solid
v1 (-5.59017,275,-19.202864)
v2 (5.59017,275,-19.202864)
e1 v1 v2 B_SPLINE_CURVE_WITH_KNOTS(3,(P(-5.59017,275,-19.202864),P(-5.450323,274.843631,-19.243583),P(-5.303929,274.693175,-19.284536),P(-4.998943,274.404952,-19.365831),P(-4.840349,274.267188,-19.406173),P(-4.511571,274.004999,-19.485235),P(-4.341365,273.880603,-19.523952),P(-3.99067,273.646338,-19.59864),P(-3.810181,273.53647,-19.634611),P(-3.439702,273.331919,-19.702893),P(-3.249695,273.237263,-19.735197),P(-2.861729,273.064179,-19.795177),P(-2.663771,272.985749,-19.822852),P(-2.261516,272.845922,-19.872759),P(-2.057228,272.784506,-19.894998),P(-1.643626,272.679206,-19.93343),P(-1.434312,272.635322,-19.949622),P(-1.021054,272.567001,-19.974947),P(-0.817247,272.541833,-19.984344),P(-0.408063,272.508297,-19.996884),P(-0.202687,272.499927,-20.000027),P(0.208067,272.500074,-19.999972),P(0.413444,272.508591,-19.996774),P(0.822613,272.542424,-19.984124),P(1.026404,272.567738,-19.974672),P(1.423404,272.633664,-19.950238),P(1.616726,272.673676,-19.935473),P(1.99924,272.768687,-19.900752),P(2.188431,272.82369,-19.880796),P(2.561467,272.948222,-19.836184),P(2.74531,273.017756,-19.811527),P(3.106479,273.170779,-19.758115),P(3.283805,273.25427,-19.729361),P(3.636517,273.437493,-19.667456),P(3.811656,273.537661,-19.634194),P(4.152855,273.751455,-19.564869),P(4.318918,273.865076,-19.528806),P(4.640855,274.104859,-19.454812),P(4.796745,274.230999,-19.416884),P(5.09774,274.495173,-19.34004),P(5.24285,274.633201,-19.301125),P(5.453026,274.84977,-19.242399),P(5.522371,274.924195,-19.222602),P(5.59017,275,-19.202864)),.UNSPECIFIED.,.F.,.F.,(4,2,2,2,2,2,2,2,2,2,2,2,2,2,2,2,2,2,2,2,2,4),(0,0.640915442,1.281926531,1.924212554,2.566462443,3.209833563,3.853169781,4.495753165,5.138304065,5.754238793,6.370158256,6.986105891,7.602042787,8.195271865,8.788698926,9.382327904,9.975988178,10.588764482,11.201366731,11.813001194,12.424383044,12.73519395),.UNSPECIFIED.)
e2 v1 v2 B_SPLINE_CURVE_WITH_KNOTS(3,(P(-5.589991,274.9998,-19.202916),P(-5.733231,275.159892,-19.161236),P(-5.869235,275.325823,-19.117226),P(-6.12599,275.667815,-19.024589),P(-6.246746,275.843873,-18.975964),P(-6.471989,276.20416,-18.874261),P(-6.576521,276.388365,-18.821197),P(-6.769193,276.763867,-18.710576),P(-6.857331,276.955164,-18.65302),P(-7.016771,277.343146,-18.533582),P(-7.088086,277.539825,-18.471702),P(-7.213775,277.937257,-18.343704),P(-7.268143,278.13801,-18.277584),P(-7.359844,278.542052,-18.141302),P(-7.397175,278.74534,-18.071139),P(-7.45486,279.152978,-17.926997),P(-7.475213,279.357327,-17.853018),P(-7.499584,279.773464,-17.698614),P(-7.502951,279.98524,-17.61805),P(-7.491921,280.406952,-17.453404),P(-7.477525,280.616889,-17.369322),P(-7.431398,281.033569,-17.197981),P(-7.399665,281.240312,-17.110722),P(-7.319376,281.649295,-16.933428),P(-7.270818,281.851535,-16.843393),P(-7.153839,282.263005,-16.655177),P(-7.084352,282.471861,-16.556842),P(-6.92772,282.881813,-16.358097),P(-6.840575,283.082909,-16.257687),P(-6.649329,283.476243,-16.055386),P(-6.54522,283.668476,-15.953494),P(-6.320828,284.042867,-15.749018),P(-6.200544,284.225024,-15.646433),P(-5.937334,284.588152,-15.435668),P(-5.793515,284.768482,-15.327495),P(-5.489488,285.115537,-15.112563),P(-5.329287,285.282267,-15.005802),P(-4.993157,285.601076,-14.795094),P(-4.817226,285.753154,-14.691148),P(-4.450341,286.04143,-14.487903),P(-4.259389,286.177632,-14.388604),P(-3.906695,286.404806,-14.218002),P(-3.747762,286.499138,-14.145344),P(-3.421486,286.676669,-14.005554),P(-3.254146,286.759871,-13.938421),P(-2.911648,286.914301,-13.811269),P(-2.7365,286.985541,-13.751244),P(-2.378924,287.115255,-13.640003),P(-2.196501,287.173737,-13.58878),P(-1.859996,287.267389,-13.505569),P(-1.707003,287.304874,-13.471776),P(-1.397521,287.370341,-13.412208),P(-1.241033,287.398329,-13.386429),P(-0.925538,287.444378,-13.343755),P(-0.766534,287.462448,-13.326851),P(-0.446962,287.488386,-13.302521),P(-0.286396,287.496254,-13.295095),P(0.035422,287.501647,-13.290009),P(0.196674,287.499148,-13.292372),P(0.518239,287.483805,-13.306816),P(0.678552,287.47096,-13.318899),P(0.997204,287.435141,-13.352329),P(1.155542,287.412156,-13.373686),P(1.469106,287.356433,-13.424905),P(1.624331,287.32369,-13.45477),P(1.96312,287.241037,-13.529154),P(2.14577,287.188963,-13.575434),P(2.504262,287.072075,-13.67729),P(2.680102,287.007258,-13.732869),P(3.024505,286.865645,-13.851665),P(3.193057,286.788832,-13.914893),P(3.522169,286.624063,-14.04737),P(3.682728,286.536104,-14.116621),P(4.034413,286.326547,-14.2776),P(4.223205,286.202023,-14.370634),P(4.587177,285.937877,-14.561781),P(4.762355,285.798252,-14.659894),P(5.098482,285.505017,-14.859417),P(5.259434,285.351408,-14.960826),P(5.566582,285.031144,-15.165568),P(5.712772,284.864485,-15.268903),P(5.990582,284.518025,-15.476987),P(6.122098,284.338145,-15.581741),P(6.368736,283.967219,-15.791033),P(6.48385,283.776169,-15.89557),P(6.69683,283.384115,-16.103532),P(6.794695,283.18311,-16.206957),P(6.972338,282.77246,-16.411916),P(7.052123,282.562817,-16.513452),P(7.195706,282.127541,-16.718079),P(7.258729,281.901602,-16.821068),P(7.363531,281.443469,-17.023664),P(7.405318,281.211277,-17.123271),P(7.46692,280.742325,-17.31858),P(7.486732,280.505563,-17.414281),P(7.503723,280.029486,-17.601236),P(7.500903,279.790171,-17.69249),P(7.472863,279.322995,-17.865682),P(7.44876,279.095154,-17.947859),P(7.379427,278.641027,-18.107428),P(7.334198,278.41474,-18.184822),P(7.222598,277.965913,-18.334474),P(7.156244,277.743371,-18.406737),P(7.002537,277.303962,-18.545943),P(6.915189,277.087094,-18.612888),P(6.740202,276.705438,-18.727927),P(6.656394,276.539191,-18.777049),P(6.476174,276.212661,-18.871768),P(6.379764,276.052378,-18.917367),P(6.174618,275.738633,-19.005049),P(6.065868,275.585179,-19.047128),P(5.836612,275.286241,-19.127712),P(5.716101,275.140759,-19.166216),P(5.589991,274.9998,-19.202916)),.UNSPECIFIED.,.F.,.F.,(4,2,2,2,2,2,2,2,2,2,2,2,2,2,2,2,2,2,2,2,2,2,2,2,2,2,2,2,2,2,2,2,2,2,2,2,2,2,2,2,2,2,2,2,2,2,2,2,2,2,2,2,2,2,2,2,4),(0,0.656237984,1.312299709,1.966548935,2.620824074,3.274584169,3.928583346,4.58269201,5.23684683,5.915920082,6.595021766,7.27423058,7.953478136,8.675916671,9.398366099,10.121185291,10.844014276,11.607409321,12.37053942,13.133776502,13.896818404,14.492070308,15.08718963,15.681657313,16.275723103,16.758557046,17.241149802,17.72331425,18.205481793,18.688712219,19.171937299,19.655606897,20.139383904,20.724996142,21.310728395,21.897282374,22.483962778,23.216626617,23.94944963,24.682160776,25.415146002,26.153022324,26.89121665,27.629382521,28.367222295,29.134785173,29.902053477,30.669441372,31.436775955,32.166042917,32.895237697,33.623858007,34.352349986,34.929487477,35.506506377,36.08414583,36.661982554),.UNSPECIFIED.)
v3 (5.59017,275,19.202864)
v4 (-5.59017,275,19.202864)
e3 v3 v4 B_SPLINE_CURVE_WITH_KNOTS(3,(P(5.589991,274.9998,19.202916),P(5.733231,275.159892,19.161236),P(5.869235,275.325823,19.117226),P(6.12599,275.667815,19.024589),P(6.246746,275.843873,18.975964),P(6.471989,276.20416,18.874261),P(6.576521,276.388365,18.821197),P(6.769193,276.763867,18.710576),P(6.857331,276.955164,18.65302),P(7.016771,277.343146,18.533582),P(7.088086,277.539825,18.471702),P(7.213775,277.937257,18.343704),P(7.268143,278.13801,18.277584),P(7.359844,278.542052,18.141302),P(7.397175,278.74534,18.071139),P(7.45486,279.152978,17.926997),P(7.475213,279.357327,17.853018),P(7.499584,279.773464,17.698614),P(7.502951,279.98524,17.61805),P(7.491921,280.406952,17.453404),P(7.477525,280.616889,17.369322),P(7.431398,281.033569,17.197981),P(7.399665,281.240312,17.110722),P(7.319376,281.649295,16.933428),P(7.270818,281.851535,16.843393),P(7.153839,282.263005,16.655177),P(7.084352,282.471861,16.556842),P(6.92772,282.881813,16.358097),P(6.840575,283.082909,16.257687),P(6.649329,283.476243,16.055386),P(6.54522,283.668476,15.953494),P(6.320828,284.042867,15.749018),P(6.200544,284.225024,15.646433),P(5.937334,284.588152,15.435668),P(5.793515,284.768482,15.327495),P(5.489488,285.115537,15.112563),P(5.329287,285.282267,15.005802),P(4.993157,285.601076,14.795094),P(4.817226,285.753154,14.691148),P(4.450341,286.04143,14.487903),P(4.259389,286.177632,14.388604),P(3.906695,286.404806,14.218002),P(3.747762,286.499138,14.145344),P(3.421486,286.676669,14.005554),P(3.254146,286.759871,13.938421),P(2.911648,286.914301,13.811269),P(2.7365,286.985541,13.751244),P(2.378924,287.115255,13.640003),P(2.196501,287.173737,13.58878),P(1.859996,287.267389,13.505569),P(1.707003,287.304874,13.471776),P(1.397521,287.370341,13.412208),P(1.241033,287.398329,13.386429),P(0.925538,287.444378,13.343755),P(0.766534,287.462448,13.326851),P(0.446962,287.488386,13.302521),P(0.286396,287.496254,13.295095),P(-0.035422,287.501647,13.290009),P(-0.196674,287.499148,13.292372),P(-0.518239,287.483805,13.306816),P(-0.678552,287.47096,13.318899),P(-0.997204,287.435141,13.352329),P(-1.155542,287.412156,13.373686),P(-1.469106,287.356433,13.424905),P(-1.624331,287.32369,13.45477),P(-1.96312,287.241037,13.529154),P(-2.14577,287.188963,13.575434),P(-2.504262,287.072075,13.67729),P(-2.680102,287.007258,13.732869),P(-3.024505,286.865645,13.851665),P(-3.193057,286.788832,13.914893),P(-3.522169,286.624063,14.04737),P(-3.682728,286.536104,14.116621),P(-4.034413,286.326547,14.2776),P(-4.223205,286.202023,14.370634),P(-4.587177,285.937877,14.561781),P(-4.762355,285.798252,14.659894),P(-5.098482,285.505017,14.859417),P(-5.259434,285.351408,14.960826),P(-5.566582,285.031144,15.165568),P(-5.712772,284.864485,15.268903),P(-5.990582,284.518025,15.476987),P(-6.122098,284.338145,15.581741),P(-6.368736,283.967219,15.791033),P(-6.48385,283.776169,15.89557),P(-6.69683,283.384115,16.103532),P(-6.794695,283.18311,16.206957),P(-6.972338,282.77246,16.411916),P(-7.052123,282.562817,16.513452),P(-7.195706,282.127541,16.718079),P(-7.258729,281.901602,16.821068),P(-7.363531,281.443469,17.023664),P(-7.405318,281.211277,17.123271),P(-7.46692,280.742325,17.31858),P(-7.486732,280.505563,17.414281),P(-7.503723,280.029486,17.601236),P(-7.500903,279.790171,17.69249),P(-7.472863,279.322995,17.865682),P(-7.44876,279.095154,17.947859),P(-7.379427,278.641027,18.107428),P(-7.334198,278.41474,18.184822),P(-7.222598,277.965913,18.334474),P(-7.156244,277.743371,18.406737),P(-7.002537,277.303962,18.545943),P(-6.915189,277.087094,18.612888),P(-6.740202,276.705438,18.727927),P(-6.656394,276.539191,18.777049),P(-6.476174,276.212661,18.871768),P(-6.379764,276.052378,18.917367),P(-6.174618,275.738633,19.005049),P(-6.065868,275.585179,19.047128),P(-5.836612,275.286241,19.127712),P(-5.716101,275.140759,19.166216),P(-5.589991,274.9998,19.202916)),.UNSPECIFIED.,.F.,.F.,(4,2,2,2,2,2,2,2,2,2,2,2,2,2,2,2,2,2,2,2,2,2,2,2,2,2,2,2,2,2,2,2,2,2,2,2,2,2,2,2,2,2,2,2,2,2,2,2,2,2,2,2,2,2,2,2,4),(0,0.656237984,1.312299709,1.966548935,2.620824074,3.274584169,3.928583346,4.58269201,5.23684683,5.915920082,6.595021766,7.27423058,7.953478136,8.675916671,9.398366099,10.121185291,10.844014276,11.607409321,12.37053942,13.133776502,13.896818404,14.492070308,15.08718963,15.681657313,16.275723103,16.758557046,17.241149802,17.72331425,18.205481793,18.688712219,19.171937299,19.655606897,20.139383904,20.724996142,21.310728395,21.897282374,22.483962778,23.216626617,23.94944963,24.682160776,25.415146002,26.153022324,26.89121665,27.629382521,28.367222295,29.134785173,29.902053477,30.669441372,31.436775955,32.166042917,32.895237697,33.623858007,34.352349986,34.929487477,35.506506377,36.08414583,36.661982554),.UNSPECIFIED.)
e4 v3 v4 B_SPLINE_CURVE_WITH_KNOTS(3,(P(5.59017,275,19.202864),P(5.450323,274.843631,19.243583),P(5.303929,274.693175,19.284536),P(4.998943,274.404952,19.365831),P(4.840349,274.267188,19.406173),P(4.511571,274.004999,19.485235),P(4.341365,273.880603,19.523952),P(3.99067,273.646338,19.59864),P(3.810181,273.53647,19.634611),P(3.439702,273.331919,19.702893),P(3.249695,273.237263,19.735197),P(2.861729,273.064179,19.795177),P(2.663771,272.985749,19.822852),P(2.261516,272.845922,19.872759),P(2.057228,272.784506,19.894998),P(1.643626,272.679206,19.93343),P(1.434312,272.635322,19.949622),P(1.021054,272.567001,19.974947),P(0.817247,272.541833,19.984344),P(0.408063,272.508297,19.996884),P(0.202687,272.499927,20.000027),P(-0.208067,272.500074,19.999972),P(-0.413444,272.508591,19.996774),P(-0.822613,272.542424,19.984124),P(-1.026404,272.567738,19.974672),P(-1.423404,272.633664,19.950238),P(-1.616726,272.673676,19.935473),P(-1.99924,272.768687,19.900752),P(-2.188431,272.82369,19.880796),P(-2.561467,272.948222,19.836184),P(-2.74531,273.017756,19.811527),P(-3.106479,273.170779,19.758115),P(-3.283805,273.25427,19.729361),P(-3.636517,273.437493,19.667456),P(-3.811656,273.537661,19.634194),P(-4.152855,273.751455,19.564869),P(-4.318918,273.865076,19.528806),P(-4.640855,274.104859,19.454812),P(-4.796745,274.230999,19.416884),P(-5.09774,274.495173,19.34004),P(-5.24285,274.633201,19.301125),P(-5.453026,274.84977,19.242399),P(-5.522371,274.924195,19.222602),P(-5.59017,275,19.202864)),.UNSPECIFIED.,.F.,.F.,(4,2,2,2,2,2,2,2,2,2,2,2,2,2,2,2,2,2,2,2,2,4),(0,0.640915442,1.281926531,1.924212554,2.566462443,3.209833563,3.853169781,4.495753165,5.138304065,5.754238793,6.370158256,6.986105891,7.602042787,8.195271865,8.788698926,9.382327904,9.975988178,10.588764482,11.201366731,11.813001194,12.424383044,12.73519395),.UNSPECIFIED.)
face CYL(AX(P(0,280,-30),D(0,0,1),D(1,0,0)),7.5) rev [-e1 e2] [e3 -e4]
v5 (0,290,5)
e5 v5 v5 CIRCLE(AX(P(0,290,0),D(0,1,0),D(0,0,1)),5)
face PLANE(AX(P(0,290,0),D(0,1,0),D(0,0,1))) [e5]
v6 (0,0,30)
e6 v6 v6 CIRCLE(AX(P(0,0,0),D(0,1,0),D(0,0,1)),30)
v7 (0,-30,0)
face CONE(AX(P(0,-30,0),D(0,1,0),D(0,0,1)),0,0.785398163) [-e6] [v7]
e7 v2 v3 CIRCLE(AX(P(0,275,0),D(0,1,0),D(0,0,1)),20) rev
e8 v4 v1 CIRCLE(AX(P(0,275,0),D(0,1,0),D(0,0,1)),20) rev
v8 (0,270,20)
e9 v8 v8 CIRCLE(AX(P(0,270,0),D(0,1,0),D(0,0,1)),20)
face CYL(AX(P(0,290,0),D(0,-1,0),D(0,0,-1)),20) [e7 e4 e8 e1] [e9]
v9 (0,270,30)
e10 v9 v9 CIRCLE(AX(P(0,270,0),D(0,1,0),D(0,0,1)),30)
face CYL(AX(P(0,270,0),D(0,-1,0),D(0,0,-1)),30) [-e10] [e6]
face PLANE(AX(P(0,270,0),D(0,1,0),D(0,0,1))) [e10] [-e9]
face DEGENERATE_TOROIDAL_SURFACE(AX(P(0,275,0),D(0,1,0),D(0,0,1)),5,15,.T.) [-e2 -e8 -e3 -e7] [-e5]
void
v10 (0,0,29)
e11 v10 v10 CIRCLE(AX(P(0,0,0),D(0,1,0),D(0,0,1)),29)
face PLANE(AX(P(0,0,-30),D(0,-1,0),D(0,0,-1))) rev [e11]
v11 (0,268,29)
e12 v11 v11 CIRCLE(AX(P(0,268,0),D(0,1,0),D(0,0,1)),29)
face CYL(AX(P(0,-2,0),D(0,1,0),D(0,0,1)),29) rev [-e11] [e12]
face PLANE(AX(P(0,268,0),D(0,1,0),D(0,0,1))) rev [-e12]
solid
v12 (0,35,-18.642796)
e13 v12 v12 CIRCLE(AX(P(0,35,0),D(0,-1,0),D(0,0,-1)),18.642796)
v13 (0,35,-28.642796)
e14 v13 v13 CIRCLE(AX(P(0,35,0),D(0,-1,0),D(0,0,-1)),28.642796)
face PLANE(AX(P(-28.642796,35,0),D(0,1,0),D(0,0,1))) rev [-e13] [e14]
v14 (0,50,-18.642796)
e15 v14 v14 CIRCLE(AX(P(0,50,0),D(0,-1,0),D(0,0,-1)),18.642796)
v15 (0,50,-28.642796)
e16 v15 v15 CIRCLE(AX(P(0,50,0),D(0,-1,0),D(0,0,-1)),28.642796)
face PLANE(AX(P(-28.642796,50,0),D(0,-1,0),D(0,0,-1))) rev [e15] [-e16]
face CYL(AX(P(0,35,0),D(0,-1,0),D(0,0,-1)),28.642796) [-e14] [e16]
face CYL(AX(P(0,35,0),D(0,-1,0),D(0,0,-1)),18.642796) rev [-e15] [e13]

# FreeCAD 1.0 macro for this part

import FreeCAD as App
import Part
import Sketcher

V = App.Vector


def edges_at(feature, points):
    """Names of the edges that pass closest to the given points."""
    edges = feature.Shape.Edges
    near = lambda p: min(range(len(edges)), key=lambda i: edges[i].distToShape(Part.Vertex(*p))[0])
    return sorted({f"Edge{near(p) + 1}" for p in points})

doc = App.newDocument("Part")
params = doc.addObject("Spreadsheet::Sheet", "Params")
for row, (alias, value) in enumerate([
    ("sketch1_diameter", "60 mm"),
    ("pad1_length", "270 mm"),
    ("sketch2_diameter", "58 mm"),
    ("pocket1_length", "270 mm"),
    ("sketch3_width", "30 mm"),
    ("revolution_angle", "360 deg"),
    ("sketch4_diameter", "40 mm"),
    ("pad2_length", "20 mm"),
    ("fillet_radius", "15 mm"),
    ("sketch5_diameter", "15 mm"),
    ("sketch6_width", "10 mm"),
    ("sketch6_height", "15 mm"),
    ("revolution2_angle", "360 deg"),
], start=1):
    params.set(f"A{row}", alias)
    params.set(f"B{row}", "=" + value)
    params.setAlias(f"B{row}", alias)

body = doc.addObject("PartDesign::Body", "Body")

# Sketch on XZ plane
sketch1 = body.newObject("Sketcher::SketchObject", "Sketch")
sketch1.AttachmentSupport = (doc.getObject("XZ_Plane"), [""])
sketch1.MapMode = "FlatFace"
sketch1.addGeometry(Part.Circle(V(0, 0, 0), V(0, 0, 1), 30), False)
sketch1.addConstraint([
    Sketcher.Constraint("Coincident", 0, 3, -1, 1),
    Sketcher.Constraint("Diameter", 0, 60.0),
])
sketch1.setExpression("Constraints[1]", "Params.sketch1_diameter")
pad1 = body.newObject("PartDesign::Pad", "Pad")
pad1.Profile = sketch1
pad1.setExpression("Length", "Params.pad1_length")
pad1.Reversed = True

# Sketch on XZ plane
sketch2 = body.newObject("Sketcher::SketchObject", "Sketch001")
sketch2.AttachmentSupport = (doc.getObject("XZ_Plane"), [""])
sketch2.MapMode = "FlatFace"
sketch2.AttachmentOffset = App.Placement(V(0, 0, -268), App.Rotation())
sketch2.addGeometry(Part.Circle(V(0, 0, 0), V(0, 0, 1), 29), False)
sketch2.addConstraint([
    Sketcher.Constraint("Coincident", 0, 3, -1, 1),
    Sketcher.Constraint("Diameter", 0, 58.0),
])
sketch2.setExpression("Constraints[1]", "Params.sketch2_diameter")
pocket1 = body.newObject("PartDesign::Pocket", "Pocket")
pocket1.Profile = sketch2
pocket1.setExpression("Length", "Params.pocket1_length")
pocket1.Reversed = True

# Sketch on YZ plane
sketch3 = body.newObject("Sketcher::SketchObject", "Sketch002")
sketch3.AttachmentSupport = (doc.getObject("YZ_Plane"), [""])
sketch3.MapMode = "FlatFace"
sketch3.addGeometry([
    Part.LineSegment(V(0, 0, 0), V(-30, 0, 0)),
    Part.LineSegment(V(-30, 0, 0), V(0, -30, 0)),
    Part.LineSegment(V(0, -30, 0), V(0, 0, 0)),
], False)
sketch3.addConstraint([
    Sketcher.Constraint("Coincident", 0, 2, 1, 1),
    Sketcher.Constraint("Coincident", 1, 2, 2, 1),
    Sketcher.Constraint("Coincident", 2, 2, 0, 1),
    Sketcher.Constraint("Horizontal", 0),
    Sketcher.Constraint("Vertical", 2),
    Sketcher.Constraint("Coincident", 2, 2, -1, 1),
    Sketcher.Constraint("Equal", 0, 2),
    Sketcher.Constraint("DistanceX", 0, 2, 0, 1, 30.0),
])
sketch3.setExpression("Constraints[7]", "Params.sketch3_width")
revolution = body.newObject("PartDesign::Revolution", "Revolution")
revolution.Profile = sketch3
revolution.ReferenceAxis = (sketch3, ["H_Axis"])
revolution.setExpression("Angle", "Params.revolution_angle")

# Sketch on XZ plane
sketch4 = body.newObject("Sketcher::SketchObject", "Sketch003")
sketch4.AttachmentSupport = (doc.getObject("XZ_Plane"), [""])
sketch4.MapMode = "FlatFace"
sketch4.AttachmentOffset = App.Placement(V(0, 0, -270), App.Rotation())
sketch4.addGeometry(Part.Circle(V(0, 0, 0), V(0, 0, 1), 20), False)
sketch4.addConstraint([
    Sketcher.Constraint("Coincident", 0, 3, -1, 1),
    Sketcher.Constraint("Diameter", 0, 40.0),
])
sketch4.setExpression("Constraints[1]", "Params.sketch4_diameter")
pad2 = body.newObject("PartDesign::Pad", "Pad001")
pad2.Profile = sketch4
pad2.setExpression("Length", "Params.pad2_length")
pad2.Reversed = True
doc.recompute()

fillet = body.newObject("PartDesign::Fillet", "Fillet")
fillet.Base = (pad2, edges_at(pad2, [(0, 290, -20)]))
fillet.setExpression("Radius", "Params.fillet_radius")

# Sketch on XY plane
sketch5 = body.newObject("Sketcher::SketchObject", "Sketch004")
sketch5.AttachmentSupport = (doc.getObject("XY_Plane"), [""])
sketch5.MapMode = "FlatFace"
sketch5.addGeometry(Part.Circle(V(0, 280, 0), V(0, 0, 1), 7.5), False)
sketch5.addConstraint([
    Sketcher.Constraint("PointOnObject", 0, 3, -2),
    Sketcher.Constraint("Diameter", 0, 15.0),
    Sketcher.Constraint("DistanceY", -1, 1, 0, 3, 280.0),
])
sketch5.setExpression("Constraints[1]", "Params.sketch5_diameter")
pocket2 = body.newObject("PartDesign::Pocket", "Pocket001")
pocket2.Profile = sketch5
pocket2.Type = "ThroughAll"
pocket2.Midplane = True
body2 = doc.addObject("PartDesign::Body", "Body001")

# Sketch on XY plane
sketch6 = body2.newObject("Sketcher::SketchObject", "Sketch005")
sketch6.AttachmentSupport = (doc.getObject("XY_Plane001"), [""])
sketch6.MapMode = "FlatFace"
sketch6.addGeometry([
    Part.LineSegment(V(-28.642796, 50, 0), V(-28.642796, 35, 0)),
    Part.LineSegment(V(-28.642796, 35, 0), V(-18.642796, 35, 0)),
    Part.LineSegment(V(-18.642796, 35, 0), V(-18.642796, 50, 0)),
    Part.LineSegment(V(-18.642796, 50, 0), V(-28.642796, 50, 0)),
], False)
sketch6.addConstraint([
    Sketcher.Constraint("Coincident", 0, 2, 1, 1),
    Sketcher.Constraint("Coincident", 1, 2, 2, 1),
    Sketcher.Constraint("Coincident", 2, 2, 3, 1),
    Sketcher.Constraint("Coincident", 3, 2, 0, 1),
    Sketcher.Constraint("Vertical", 0),
    Sketcher.Constraint("Horizontal", 1),
    Sketcher.Constraint("Vertical", 2),
    Sketcher.Constraint("Horizontal", 3),
    Sketcher.Constraint("DistanceX", 1, 1, 1, 2, 10.0),
    Sketcher.Constraint("DistanceY", 0, 2, 0, 1, 15.0),
    Sketcher.Constraint("DistanceY", -1, 1, 0, 2, 35.0),
    Sketcher.Constraint("DistanceX", 0, 2, -1, 1, 28.642796),
])
sketch6.setExpression("Constraints[8]", "Params.sketch6_width")
sketch6.setExpression("Constraints[9]", "Params.sketch6_height")
revolution2 = body2.newObject("PartDesign::Revolution", "Revolution001")
revolution2.Profile = sketch6
revolution2.ReferenceAxis = (sketch6, ["V_Axis"])
revolution2.setExpression("Angle", "Params.revolution2_angle")

doc.recompute()
